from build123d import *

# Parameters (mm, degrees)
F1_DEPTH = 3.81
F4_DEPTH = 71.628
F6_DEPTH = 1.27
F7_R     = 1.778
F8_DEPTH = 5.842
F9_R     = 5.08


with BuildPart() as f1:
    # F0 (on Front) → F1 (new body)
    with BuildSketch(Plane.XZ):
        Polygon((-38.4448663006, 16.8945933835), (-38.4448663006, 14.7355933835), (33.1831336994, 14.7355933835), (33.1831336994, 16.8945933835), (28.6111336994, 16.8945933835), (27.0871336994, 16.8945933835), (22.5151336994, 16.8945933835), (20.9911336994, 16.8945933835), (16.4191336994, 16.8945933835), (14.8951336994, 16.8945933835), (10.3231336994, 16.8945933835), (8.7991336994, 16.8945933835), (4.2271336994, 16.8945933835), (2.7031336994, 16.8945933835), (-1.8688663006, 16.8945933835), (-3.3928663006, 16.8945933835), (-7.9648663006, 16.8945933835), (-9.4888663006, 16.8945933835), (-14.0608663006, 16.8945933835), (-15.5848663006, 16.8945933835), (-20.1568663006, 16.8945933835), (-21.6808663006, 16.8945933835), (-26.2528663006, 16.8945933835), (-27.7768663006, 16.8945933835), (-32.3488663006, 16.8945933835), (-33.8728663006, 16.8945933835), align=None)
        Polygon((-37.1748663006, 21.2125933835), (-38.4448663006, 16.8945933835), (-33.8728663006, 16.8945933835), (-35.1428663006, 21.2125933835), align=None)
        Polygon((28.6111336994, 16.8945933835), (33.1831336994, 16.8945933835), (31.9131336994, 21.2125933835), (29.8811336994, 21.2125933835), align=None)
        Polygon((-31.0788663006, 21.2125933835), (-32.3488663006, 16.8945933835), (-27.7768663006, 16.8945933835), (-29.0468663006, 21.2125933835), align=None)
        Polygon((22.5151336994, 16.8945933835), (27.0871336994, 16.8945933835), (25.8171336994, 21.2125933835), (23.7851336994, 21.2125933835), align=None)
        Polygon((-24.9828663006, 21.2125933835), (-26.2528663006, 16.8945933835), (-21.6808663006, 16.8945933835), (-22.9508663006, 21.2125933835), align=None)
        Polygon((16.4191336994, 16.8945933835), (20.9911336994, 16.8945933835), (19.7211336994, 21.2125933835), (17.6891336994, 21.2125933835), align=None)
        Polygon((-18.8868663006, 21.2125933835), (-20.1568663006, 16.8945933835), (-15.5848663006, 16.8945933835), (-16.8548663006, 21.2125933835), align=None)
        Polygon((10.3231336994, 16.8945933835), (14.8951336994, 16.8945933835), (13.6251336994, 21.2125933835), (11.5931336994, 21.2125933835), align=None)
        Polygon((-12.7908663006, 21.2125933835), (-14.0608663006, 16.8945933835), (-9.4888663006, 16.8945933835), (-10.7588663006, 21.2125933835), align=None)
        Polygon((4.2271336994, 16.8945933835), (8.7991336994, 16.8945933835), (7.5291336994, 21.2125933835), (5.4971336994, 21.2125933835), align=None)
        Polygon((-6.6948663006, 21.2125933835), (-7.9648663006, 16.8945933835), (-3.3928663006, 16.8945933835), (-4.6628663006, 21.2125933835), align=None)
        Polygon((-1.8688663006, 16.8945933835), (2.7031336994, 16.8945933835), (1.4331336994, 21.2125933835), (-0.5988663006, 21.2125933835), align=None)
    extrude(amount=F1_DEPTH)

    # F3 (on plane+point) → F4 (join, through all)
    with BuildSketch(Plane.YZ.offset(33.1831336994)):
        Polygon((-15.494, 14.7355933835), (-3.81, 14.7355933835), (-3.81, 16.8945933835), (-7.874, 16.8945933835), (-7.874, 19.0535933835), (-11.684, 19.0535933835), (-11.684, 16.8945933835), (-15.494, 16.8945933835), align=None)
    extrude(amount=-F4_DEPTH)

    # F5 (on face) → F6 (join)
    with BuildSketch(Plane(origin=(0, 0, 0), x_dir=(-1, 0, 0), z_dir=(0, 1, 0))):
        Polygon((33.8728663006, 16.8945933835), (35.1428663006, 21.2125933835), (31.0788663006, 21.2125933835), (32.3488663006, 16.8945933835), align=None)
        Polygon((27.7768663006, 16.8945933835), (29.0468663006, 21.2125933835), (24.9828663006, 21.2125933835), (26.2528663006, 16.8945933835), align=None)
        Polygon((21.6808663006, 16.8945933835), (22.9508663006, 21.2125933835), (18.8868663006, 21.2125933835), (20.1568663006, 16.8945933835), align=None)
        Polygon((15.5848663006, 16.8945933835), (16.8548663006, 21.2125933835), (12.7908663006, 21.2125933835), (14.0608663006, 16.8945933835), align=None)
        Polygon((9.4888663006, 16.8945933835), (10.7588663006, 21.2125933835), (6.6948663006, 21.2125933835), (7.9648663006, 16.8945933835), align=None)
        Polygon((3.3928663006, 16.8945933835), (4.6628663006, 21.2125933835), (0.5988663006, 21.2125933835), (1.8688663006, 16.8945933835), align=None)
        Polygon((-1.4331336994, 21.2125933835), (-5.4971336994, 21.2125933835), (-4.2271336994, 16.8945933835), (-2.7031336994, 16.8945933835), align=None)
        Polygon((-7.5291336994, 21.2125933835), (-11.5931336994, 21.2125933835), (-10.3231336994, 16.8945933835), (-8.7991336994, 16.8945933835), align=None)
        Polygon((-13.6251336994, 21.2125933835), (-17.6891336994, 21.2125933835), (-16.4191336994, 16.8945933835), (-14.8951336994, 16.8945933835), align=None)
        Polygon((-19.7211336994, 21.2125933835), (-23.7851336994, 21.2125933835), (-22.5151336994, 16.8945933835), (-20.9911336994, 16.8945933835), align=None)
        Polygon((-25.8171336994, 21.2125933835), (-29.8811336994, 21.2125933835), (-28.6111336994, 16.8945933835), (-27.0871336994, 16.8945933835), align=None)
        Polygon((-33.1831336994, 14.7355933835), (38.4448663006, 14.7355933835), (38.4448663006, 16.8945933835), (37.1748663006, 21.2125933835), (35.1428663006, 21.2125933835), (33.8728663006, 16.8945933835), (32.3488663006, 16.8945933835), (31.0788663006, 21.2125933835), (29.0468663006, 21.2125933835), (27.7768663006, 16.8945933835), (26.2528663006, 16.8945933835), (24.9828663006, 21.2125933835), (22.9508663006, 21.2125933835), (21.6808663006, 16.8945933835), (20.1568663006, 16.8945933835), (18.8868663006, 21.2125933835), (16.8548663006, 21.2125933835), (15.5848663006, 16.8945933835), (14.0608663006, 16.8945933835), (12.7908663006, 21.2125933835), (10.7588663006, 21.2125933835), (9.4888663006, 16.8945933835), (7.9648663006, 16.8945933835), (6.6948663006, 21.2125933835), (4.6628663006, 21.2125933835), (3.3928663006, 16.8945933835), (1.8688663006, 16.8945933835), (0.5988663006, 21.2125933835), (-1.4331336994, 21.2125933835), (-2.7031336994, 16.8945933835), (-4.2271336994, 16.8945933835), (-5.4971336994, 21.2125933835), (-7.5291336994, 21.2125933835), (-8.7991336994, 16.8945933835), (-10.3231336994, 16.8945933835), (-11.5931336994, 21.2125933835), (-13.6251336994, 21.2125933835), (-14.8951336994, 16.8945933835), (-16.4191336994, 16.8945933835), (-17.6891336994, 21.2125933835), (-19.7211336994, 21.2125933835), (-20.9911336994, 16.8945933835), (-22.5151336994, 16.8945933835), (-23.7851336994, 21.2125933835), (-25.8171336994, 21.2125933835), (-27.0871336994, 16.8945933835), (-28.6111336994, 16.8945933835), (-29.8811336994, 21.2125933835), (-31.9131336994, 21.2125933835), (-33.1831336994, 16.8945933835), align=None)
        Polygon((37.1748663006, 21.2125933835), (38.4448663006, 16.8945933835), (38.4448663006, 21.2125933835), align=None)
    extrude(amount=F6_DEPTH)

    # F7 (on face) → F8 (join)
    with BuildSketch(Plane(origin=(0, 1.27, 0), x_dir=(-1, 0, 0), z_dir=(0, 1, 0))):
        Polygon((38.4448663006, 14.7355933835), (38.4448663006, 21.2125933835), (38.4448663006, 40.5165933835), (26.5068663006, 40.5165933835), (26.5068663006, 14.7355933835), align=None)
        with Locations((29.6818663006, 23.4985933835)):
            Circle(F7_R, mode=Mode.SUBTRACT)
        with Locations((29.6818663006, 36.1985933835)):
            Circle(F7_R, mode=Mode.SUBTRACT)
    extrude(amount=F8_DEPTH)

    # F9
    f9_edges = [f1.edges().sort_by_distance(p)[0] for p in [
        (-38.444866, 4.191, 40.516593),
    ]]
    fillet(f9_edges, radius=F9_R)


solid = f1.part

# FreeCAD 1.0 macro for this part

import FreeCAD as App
import Part
import Sketcher
from FreeCAD import Vector
Q = App.Units.Quantity


def edges_at(feature, points):
    """Names of the edges that pass closest to the given points."""
    edges = feature.Shape.Edges
    near = lambda p: min(range(len(edges)), key=lambda i: edges[i].distToShape(Part.Vertex(*p))[0])
    return sorted({f"Edge{near(p) + 1}" for p in points})


def add_polygon(sketch, points):
    """Adds a closed chain of lines whose ends are joined by coincident constraints."""
    first, n = sketch.GeometryCount, len(points)
    for a, b in zip(points, points[1:] + points[:1]):
        sketch.addGeometry(Part.LineSegment(App.Vector(*a, 0), App.Vector(*b, 0)), False)
    for i in range(n):
        sketch.addConstraint(Sketcher.Constraint("Coincident", first + i, 2, first + (i + 1) % n, 1))

doc = App.newDocument("Part")
body = doc.addObject("PartDesign::Body", "Body")

# Sketch on XZ plane
sketch1 = body.newObject("Sketcher::SketchObject", "Sketch")
sketch1.AttachmentSupport = (doc.getObject("XZ_Plane"), [""])
sketch1.MapMode = "FlatFace"
add_polygon(sketch1, [(-38.444866, 16.894593), (-38.444866, 14.735593), (33.183134, 14.735593), (33.183134, 16.894593), (31.913134, 21.212593), (29.881134, 21.212593), (28.611134, 16.894593), (27.087134, 16.894593), (25.817134, 21.212593), (23.785134, 21.212593), (22.515134, 16.894593), (20.991134, 16.894593), (19.721134, 21.212593), (17.689134, 21.212593), (16.419134, 16.894593), (14.895134, 16.894593), (13.625134, 21.212593), (11.593134, 21.212593), (10.323134, 16.894593), (8.799134, 16.894593), (7.529134, 21.212593), (5.497134, 21.212593), (4.227134, 16.894593), (2.703134, 16.894593), (1.433134, 21.212593), (-0.598866, 21.212593), (-1.868866, 16.894593), (-3.392866, 16.894593), (-4.662866, 21.212593), (-6.694866, 21.212593), (-7.964866, 16.894593), (-9.488866, 16.894593), (-10.758866, 21.212593), (-12.790866, 21.212593), (-14.060866, 16.894593), (-15.584866, 16.894593), (-16.854866, 21.212593), (-18.886866, 21.212593), (-20.156866, 16.894593), (-21.680866, 16.894593), (-22.950866, 21.212593), (-24.982866, 21.212593), (-26.252866, 16.894593), (-27.776866, 16.894593), (-29.046866, 21.212593), (-31.078866, 21.212593), (-32.348866, 16.894593), (-33.872866, 16.894593), (-35.142866, 21.212593), (-37.174866, 21.212593)])  # lines 0-49
sketch1.addConstraint(Sketcher.Constraint("Vertical", 0))
sketch1.addConstraint(Sketcher.Constraint("Horizontal", 1))
sketch1.addConstraint(Sketcher.Constraint("Vertical", 2))
sketch1.addConstraint(Sketcher.Constraint("Horizontal", 4))
sketch1.addConstraint(Sketcher.Constraint("Horizontal", 6))
sketch1.addConstraint(Sketcher.Constraint("Horizontal", 8))
sketch1.addConstraint(Sketcher.Constraint("Horizontal", 10))
sketch1.addConstraint(Sketcher.Constraint("Horizontal", 12))
sketch1.addConstraint(Sketcher.Constraint("Horizontal", 14))
sketch1.addConstraint(Sketcher.Constraint("Horizontal", 16))
sketch1.addConstraint(Sketcher.Constraint("Horizontal", 18))
sketch1.addConstraint(Sketcher.Constraint("Horizontal", 20))
sketch1.addConstraint(Sketcher.Constraint("Horizontal", 22))
sketch1.addConstraint(Sketcher.Constraint("Horizontal", 24))
sketch1.addConstraint(Sketcher.Constraint("Horizontal", 26))
sketch1.addConstraint(Sketcher.Constraint("Horizontal", 28))
sketch1.addConstraint(Sketcher.Constraint("Horizontal", 30))
sketch1.addConstraint(Sketcher.Constraint("Horizontal", 32))
sketch1.addConstraint(Sketcher.Constraint("Horizontal", 34))
sketch1.addConstraint(Sketcher.Constraint("Horizontal", 36))
sketch1.addConstraint(Sketcher.Constraint("Horizontal", 38))
sketch1.addConstraint(Sketcher.Constraint("Horizontal", 40))
sketch1.addConstraint(Sketcher.Constraint("Horizontal", 42))
sketch1.addConstraint(Sketcher.Constraint("Horizontal", 44))
sketch1.addConstraint(Sketcher.Constraint("Horizontal", 46))
sketch1.addConstraint(Sketcher.Constraint("Horizontal", 48))
sketch1.addConstraint(Sketcher.Constraint("Parallel", 3, 7))
sketch1.addConstraint(Sketcher.Constraint("Parallel", 5, 9))
sketch1.addConstraint(Sketcher.Constraint("Parallel", 7, 11))
sketch1.addConstraint(Sketcher.Constraint("Parallel", 9, 13))
sketch1.addConstraint(Sketcher.Constraint("Parallel", 11, 15))
sketch1.addConstraint(Sketcher.Constraint("Parallel", 13, 17))
sketch1.addConstraint(Sketcher.Constraint("Parallel", 15, 19))
sketch1.addConstraint(Sketcher.Constraint("Parallel", 17, 21))
sketch1.addConstraint(Sketcher.Constraint("Parallel", 19, 23))
sketch1.addConstraint(Sketcher.Constraint("Parallel", 21, 25))
sketch1.addConstraint(Sketcher.Constraint("Parallel", 23, 27))
sketch1.addConstraint(Sketcher.Constraint("Parallel", 25, 29))
sketch1.addConstraint(Sketcher.Constraint("Parallel", 27, 31))
sketch1.addConstraint(Sketcher.Constraint("Parallel", 29, 33))
sketch1.addConstraint(Sketcher.Constraint("Parallel", 31, 35))
sketch1.addConstraint(Sketcher.Constraint("Parallel", 33, 37))
sketch1.addConstraint(Sketcher.Constraint("Parallel", 35, 39))
sketch1.addConstraint(Sketcher.Constraint("Parallel", 37, 41))
sketch1.addConstraint(Sketcher.Constraint("Parallel", 39, 43))
sketch1.addConstraint(Sketcher.Constraint("Parallel", 41, 45))
sketch1.addConstraint(Sketcher.Constraint("Parallel", 43, 47))
sketch1.addConstraint(Sketcher.Constraint("Parallel", 45, 49))
sketch1.addConstraint(Sketcher.Constraint("Horizontal", 2, 2, 5, 2))
sketch1.addConstraint(Sketcher.Constraint("Horizontal", 4, 2, 7, 2))
sketch1.addConstraint(Sketcher.Constraint("Horizontal", 6, 2, 9, 2))
sketch1.addConstraint(Sketcher.Constraint("Horizontal", 8, 2, 11, 2))
sketch1.addConstraint(Sketcher.Constraint("Horizontal", 10, 2, 13, 2))
sketch1.addConstraint(Sketcher.Constraint("Horizontal", 12, 2, 15, 2))
sketch1.addConstraint(Sketcher.Constraint("Horizontal", 14, 2, 17, 2))
sketch1.addConstraint(Sketcher.Constraint("Horizontal", 16, 2, 19, 2))
sketch1.addConstraint(Sketcher.Constraint("Horizontal", 18, 2, 21, 2))
sketch1.addConstraint(Sketcher.Constraint("Horizontal", 20, 2, 23, 2))
sketch1.addConstraint(Sketcher.Constraint("Horizontal", 22, 2, 25, 2))
sketch1.addConstraint(Sketcher.Constraint("Horizontal", 24, 2, 27, 2))
sketch1.addConstraint(Sketcher.Constraint("Horizontal", 26, 2, 29, 2))
sketch1.addConstraint(Sketcher.Constraint("Horizontal", 28, 2, 31, 2))
sketch1.addConstraint(Sketcher.Constraint("Horizontal", 30, 2, 33, 2))
sketch1.addConstraint(Sketcher.Constraint("Horizontal", 32, 2, 35, 2))
sketch1.addConstraint(Sketcher.Constraint("Horizontal", 34, 2, 37, 2))
sketch1.addConstraint(Sketcher.Constraint("Horizontal", 36, 2, 39, 2))
sketch1.addConstraint(Sketcher.Constraint("Horizontal", 38, 2, 41, 2))
sketch1.addConstraint(Sketcher.Constraint("Horizontal", 40, 2, 43, 2))
sketch1.addConstraint(Sketcher.Constraint("Horizontal", 42, 2, 45, 2))
sketch1.addConstraint(Sketcher.Constraint("Horizontal", 44, 2, 47, 2))
sketch1.addConstraint(Sketcher.Constraint("Horizontal", 46, 2, 49, 2))
sketch1.addConstraint(Sketcher.Constraint("Equal", 4, 8))
sketch1.addConstraint(Sketcher.Constraint("Equal", 6, 10))
sketch1.addConstraint(Sketcher.Constraint("Equal", 8, 12))
sketch1.addConstraint(Sketcher.Constraint("Equal", 10, 14))
sketch1.addConstraint(Sketcher.Constraint("Equal", 12, 16))
sketch1.addConstraint(Sketcher.Constraint("Equal", 14, 18))
sketch1.addConstraint(Sketcher.Constraint("Equal", 16, 20))
sketch1.addConstraint(Sketcher.Constraint("Equal", 18, 22))
sketch1.addConstraint(Sketcher.Constraint("Equal", 20, 24))
sketch1.addConstraint(Sketcher.Constraint("Equal", 22, 26))
sketch1.addConstraint(Sketcher.Constraint("Equal", 24, 28))
sketch1.addConstraint(Sketcher.Constraint("Equal", 26, 30))
sketch1.addConstraint(Sketcher.Constraint("Equal", 28, 32))
sketch1.addConstraint(Sketcher.Constraint("Equal", 30, 34))
sketch1.addConstraint(Sketcher.Constraint("Equal", 32, 36))
sketch1.addConstraint(Sketcher.Constraint("Equal", 34, 38))
sketch1.addConstraint(Sketcher.Constraint("Equal", 36, 40))
sketch1.addConstraint(Sketcher.Constraint("Equal", 38, 42))
sketch1.addConstraint(Sketcher.Constraint("Equal", 40, 44))
sketch1.addConstraint(Sketcher.Constraint("Equal", 42, 46))
sketch1.addConstraint(Sketcher.Constraint("Equal", 44, 48))
sketch1.addConstraint(Sketcher.Constraint("Equal", 3, 5))
sketch1.addConstraint(Sketcher.Constraint("DistanceX", 1, 1, 1, 2, Q("2.82 in")))
sketch1.addConstraint(Sketcher.Constraint("DistanceX", 4, 2, 4, 1, Q("0.08 in")))
sketch1.addConstraint(Sketcher.Constraint("DistanceX", 6, 2, 6, 1, Q("0.06 in")))
sketch1.addConstraint(Sketcher.Constraint("DistanceY", 0, 2, 0, 1, Q("0.085 in")))
sketch1.addConstraint(Sketcher.Constraint("DistanceY", 2, 2, 3, 2, Q("0.17 in")))
sketch1.addConstraint(Sketcher.Constraint("DistanceX", 0, 2, -1, 1, Q("38.444866 mm")))
sketch1.addConstraint(Sketcher.Constraint("DistanceY", -1, 1, 0, 2, Q("14.735593 mm")))
pad1 = body.newObject("PartDesign::Pad", "Pad")
pad1.Profile = sketch1
pad1.Length = Q("0.15 in")

# Sketch on YZ plane
sketch2 = body.newObject("Sketcher::SketchObject", "Sketch001")
sketch2.AttachmentSupport = (doc.getObject("YZ_Plane"), [""])
sketch2.MapMode = "FlatFace"
sketch2.AttachmentOffset = App.Placement(Vector(0, 0, 33.183134), App.Rotation())
add_polygon(sketch2, [(-15.494, 14.735593), (-3.81, 14.735593), (-3.81, 16.894593), (-7.874, 16.894593), (-7.874, 19.053593), (-11.684, 19.053593), (-11.684, 16.894593), (-15.494, 16.894593)])  # lines 0-7
sketch2.addConstraint(Sketcher.Constraint("Horizontal", 0))
sketch2.addConstraint(Sketcher.Constraint("Vertical", 1))
sketch2.addConstraint(Sketcher.Constraint("Horizontal", 2))
sketch2.addConstraint(Sketcher.Constraint("Vertical", 3))
sketch2.addConstraint(Sketcher.Constraint("Horizontal", 4))
sketch2.addConstraint(Sketcher.Constraint("Vertical", 5))
sketch2.addConstraint(Sketcher.Constraint("Horizontal", 6))
sketch2.addConstraint(Sketcher.Constraint("Vertical", 7))
sketch2.addConstraint(Sketcher.Constraint("Horizontal", 2, 2, 5, 2))
sketch2.addConstraint(Sketcher.Constraint("Equal", 4, 6))
sketch2.addConstraint(Sketcher.Constraint("Equal", 1, 3))
sketch2.addConstraint(Sketcher.Constraint("DistanceX", 0, 1, 0, 2, Q("0.46 in")))
sketch2.addConstraint(Sketcher.Constraint("DistanceX", 2, 2, 2, 1, Q("0.16 in")))
sketch2.addConstraint(Sketcher.Constraint("DistanceY", 1, 1, 1, 2, Q("0.085 in")))
sketch2.addConstraint(Sketcher.Constraint("DistanceX", 0, 2, -1, 1, Q("0.15 in")))
sketch2.addConstraint(Sketcher.Constraint("DistanceY", -1, 1, 0, 2, Q("14.735593 mm")))
pad2 = body.newObject("PartDesign::Pad", "Pad001")
pad2.Profile = sketch2
pad2.Length = Q("2.82 in")
pad2.Reversed = True

# Sketch on XZ plane
sketch3 = body.newObject("Sketcher::SketchObject", "Sketch002")
sketch3.AttachmentSupport = (doc.getObject("XZ_Plane"), [""])
sketch3.MapMode = "FlatFace"
add_polygon(sketch3, [(31.913134, 21.212593), (33.183134, 16.894593), (33.183134, 14.735593), (-38.444866, 14.735593), (-38.444866, 21.212593)])  # lines 0-4
sketch3.addConstraint(Sketcher.Constraint("Vertical", 1))
sketch3.addConstraint(Sketcher.Constraint("Horizontal", 2))
sketch3.addConstraint(Sketcher.Constraint("Vertical", 3))
sketch3.addConstraint(Sketcher.Constraint("Horizontal", 4))
sketch3.addConstraint(Sketcher.Constraint("DistanceX", 2, 2, 2, 1, Q("2.82 in")))
sketch3.addConstraint(Sketcher.Constraint("DistanceX", 4, 1, 4, 2, Q("2.77 in")))
sketch3.addConstraint(Sketcher.Constraint("DistanceY", 1, 2, 1, 1, Q("0.085 in")))
sketch3.addConstraint(Sketcher.Constraint("DistanceY", 3, 1, 3, 2, Q("0.255 in")))
sketch3.addConstraint(Sketcher.Constraint("DistanceX", -1, 1, 0, 2, Q("33.183134 mm")))
sketch3.addConstraint(Sketcher.Constraint("DistanceY", -1, 1, 0, 2, Q("16.894593 mm")))
pad3 = body.newObject("PartDesign::Pad", "Pad002")
pad3.Profile = sketch3
pad3.Length = Q("0.05 in")
pad3.Reversed = True

# Sketch on XZ plane
sketch4 = body.newObject("Sketcher::SketchObject", "Sketch003")
sketch4.AttachmentSupport = (doc.getObject("XZ_Plane"), [""])
sketch4.MapMode = "FlatFace"
sketch4.AttachmentOffset = App.Placement(Vector(0, 0, -0.05 * 25.4), App.Rotation())
add_polygon(sketch4, [(-38.444866, 14.735593), (-38.444866, 40.516593), (-26.506866, 40.516593), (-26.506866, 14.735593)])  # lines 0-3
sketch4.addGeometry(Part.Circle(Vector(-29.681866, 23.498593, 0), Vector(0, 0, 1), 1.778), False)  # 4
sketch4.addGeometry(Part.Circle(Vector(-29.681866, 36.198593, 0), Vector(0, 0, 1), 1.778), False)  # 5
sketch4.addConstraint(Sketcher.Constraint("Vertical", 0))
sketch4.addConstraint(Sketcher.Constraint("Horizontal", 1))
sketch4.addConstraint(Sketcher.Constraint("Vertical", 2))
sketch4.addConstraint(Sketcher.Constraint("Horizontal", 3))
sketch4.addConstraint(Sketcher.Constraint("Equal", 4, 5))
sketch4.addConstraint(Sketcher.Constraint("Vertical", 4, 3, 5, 3))
sketch4.addConstraint(Sketcher.Constraint("Diameter", 4, Q("0.14 in")))
sketch4.addConstraint(Sketcher.Constraint("DistanceX", 1, 1, 1, 2, Q("0.47 in")))
sketch4.addConstraint(Sketcher.Constraint("DistanceY", 4, 3, 5, 3, Q("0.5 in")))
sketch4.addConstraint(Sketcher.Constraint("DistanceY", 0, 1, 0, 2, Q("1.015 in")))
sketch4.addConstraint(Sketcher.Constraint("DistanceY", 5, 3, 0, 2, Q("0.17 in")))
sketch4.addConstraint(Sketcher.Constraint("DistanceX", 0, 2, 5, 3, Q("0.345 in")))
sketch4.addConstraint(Sketcher.Constraint("DistanceX", 4, 3, -1, 1, Q("29.681866 mm")))
sketch4.addConstraint(Sketcher.Constraint("DistanceY", -1, 1, 4, 3, Q("23.498593 mm")))
pad4 = body.newObject("PartDesign::Pad", "Pad003")
pad4.Profile = sketch4
pad4.Length = Q("0.23 in")
pad4.Reversed = True
doc.recompute()

fillet = body.newObject("PartDesign::Fillet", "Fillet")
fillet.Base = (pad4, edges_at(pad4, [(-38.445, 4.191, 40.517)]))
fillet.Radius = Q("0.2 in")

doc.recompute()
